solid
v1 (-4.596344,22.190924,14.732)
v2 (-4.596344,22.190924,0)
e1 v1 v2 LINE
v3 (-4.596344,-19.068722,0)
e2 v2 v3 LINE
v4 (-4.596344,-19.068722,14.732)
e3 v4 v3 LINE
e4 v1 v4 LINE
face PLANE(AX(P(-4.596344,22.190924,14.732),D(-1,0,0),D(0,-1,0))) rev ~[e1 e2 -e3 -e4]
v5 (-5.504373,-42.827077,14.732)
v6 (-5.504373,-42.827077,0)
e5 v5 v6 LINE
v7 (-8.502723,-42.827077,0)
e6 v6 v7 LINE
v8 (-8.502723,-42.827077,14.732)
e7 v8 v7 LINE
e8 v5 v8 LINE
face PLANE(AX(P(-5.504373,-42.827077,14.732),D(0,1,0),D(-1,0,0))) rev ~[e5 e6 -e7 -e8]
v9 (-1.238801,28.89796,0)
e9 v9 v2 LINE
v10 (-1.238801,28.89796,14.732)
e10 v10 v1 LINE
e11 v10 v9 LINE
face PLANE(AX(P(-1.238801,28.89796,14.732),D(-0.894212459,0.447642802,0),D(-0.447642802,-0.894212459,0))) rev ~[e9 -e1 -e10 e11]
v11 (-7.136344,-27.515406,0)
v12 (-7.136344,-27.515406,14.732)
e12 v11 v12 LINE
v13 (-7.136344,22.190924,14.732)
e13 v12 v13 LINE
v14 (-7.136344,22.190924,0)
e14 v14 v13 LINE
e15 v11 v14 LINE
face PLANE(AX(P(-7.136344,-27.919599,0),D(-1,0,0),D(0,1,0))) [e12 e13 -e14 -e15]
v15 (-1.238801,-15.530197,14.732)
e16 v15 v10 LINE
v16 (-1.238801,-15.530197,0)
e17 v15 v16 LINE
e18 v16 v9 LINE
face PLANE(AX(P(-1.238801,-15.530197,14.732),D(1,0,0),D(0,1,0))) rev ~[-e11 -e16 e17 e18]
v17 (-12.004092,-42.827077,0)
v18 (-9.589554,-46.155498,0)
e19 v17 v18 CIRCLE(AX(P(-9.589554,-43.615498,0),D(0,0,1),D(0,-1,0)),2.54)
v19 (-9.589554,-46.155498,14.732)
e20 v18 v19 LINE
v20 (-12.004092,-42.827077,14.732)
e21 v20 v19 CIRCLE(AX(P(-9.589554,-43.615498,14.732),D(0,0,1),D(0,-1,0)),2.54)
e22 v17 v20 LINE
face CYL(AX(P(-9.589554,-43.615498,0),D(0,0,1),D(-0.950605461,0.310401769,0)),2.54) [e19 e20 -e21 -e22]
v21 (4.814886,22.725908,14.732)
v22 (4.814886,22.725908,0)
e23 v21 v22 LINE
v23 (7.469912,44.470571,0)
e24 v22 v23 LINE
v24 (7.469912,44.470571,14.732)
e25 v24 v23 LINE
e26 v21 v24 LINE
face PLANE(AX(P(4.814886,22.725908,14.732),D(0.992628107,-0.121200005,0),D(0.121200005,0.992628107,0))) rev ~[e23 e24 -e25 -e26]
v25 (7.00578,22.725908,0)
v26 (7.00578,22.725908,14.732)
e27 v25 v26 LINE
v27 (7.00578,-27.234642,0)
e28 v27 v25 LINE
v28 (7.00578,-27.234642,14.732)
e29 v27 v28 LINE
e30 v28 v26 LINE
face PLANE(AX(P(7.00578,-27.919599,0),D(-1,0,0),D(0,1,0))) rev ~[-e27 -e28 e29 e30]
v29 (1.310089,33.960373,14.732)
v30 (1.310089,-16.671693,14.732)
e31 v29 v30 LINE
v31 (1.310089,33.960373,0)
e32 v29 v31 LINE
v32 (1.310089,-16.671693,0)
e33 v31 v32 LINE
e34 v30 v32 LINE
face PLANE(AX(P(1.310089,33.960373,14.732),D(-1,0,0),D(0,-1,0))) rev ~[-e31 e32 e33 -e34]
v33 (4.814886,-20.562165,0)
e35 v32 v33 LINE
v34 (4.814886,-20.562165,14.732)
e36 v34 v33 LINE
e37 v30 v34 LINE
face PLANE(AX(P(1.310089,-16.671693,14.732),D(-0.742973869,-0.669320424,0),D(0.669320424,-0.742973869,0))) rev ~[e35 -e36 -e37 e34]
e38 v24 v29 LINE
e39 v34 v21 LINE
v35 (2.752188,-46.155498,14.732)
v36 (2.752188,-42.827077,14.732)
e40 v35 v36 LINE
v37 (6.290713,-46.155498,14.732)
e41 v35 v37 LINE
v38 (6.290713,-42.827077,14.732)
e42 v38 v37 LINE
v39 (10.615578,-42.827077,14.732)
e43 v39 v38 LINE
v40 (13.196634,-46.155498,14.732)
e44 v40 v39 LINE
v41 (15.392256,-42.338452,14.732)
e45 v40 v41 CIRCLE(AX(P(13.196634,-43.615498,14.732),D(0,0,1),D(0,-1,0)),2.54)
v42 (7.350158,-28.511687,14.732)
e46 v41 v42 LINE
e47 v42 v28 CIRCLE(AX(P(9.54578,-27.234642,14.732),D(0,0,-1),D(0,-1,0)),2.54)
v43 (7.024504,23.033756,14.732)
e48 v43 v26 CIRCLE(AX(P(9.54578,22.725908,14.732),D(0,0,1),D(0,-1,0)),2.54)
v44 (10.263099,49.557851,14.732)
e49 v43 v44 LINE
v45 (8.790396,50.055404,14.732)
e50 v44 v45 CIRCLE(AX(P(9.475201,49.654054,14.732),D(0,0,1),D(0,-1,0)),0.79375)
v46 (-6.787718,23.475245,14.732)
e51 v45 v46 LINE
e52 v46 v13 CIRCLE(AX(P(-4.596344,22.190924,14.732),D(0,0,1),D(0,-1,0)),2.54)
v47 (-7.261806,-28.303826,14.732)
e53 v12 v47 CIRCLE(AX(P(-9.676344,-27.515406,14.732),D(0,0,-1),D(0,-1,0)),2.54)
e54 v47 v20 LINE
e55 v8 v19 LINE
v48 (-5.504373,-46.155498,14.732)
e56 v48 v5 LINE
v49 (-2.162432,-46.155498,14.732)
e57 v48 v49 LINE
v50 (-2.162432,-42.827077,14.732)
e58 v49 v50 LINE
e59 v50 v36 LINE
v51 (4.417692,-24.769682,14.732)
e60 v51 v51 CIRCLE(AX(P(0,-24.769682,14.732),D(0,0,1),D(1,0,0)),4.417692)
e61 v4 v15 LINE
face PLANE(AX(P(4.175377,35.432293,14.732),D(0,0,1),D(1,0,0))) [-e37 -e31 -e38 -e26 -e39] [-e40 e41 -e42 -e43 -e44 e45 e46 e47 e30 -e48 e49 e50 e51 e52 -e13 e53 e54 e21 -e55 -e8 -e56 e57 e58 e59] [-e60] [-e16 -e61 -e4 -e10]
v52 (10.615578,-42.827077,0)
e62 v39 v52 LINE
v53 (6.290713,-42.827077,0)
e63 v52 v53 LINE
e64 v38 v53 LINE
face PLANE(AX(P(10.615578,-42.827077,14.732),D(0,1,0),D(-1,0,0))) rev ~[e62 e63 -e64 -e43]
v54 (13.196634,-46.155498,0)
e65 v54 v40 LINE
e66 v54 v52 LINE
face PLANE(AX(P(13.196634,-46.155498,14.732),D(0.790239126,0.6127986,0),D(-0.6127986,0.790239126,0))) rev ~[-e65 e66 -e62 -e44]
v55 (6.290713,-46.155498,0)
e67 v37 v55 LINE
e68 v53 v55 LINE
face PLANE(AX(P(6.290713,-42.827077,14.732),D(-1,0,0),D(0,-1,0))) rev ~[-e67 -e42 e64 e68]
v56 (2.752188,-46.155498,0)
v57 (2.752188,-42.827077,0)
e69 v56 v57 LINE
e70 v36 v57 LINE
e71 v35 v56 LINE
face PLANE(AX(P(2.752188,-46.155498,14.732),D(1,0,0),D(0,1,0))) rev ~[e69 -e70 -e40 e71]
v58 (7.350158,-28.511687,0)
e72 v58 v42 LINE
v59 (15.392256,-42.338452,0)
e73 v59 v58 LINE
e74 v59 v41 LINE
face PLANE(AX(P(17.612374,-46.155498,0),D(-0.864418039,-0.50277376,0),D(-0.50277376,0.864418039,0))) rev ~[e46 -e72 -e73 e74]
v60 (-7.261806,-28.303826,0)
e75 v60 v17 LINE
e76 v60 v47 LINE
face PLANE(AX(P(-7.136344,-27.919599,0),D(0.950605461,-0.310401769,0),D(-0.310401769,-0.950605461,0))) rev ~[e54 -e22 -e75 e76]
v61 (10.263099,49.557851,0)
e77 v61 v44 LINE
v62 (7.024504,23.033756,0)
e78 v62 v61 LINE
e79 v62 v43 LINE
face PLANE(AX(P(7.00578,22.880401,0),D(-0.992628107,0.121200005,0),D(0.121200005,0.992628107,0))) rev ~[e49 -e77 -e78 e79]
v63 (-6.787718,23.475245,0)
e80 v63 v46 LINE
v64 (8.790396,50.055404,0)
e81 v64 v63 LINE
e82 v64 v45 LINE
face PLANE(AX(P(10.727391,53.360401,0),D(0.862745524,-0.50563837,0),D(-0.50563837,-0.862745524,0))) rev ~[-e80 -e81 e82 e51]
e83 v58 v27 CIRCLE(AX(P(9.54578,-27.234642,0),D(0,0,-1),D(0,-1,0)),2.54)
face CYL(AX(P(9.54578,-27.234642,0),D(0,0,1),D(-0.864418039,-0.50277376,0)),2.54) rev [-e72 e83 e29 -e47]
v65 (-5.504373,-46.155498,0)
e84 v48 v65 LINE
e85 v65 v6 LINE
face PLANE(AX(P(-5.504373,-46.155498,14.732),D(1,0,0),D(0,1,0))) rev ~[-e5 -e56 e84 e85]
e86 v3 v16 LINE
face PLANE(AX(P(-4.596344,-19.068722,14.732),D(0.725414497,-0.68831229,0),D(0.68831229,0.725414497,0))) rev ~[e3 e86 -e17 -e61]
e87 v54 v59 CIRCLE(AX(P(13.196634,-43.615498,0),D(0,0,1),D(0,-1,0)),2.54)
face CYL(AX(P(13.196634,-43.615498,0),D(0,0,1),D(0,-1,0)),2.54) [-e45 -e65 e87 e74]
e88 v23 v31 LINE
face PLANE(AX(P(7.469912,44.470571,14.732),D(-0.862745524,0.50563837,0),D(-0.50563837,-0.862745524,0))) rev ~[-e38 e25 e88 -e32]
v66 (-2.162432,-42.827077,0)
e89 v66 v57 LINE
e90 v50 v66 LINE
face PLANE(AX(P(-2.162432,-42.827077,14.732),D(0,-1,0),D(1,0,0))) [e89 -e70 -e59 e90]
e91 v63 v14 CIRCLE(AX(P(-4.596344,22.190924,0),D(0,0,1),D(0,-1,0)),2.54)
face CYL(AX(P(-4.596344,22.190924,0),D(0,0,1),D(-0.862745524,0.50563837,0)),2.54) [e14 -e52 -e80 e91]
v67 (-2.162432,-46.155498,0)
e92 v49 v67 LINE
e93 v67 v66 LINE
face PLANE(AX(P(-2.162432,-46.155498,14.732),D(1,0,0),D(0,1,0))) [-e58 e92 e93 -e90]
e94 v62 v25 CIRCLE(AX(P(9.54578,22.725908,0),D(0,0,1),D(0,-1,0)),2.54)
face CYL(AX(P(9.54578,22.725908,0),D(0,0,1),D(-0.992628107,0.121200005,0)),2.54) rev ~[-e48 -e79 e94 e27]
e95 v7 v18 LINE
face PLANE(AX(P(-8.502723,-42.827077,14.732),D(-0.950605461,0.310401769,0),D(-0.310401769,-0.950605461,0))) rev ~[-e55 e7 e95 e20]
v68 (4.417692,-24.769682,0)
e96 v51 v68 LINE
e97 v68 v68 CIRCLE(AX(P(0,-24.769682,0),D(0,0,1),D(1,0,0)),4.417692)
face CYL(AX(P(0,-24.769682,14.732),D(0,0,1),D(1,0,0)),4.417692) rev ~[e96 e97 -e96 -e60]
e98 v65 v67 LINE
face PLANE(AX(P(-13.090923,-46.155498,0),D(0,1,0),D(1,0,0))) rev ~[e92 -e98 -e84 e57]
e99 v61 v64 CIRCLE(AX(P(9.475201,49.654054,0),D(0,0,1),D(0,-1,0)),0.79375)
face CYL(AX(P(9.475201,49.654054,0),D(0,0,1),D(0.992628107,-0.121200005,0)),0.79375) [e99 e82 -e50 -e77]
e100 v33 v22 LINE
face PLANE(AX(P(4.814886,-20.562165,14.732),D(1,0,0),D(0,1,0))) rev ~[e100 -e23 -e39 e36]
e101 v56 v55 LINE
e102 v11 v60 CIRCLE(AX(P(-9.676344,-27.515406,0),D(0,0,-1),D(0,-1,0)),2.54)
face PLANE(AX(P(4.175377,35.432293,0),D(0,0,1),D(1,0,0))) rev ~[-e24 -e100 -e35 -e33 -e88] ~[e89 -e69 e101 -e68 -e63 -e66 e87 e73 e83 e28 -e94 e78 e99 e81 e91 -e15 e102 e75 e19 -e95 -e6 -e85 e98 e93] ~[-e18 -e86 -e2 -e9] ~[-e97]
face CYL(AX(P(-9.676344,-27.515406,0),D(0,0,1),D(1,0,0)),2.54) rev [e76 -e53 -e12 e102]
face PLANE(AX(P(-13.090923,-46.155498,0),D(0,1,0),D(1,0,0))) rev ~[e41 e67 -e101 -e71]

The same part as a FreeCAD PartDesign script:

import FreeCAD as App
import Part
import Sketcher

V = App.Vector
Q = App.Units.Quantity


def edges_at(feature, points):
    """Names of the edges that pass closest to the given points."""
    edges = feature.Shape.Edges
    near = lambda p: min(range(len(edges)), key=lambda i: edges[i].distToShape(Part.Vertex(*p))[0])
    return sorted({f"Edge{near(p) + 1}" for p in points})

doc = App.newDocument("Part")
params = doc.addObject("Spreadsheet::Sheet", "Params")
for row, (alias, value) in enumerate([
    ("sketch1_height", "2 in"),
    ("pad1_length", "0.58 in"),
    ("fillet_radius", "0.1 in"),
    ("fillet2_radius", "0.03125 in"),
    ("pocket1_length", "1.5 in"),
], start=1):
    params.set(f"A{row}", alias)
    params.set(f"B{row}", "=" + value)
    params.setAlias(f"B{row}", alias)

body = doc.addObject("PartDesign::Body", "Body")

sketch1 = body.newObject("Sketcher::SketchObject", "Sketch")
sketch1.AttachmentSupport = (doc.getObject("XY_Plane"), [""])
sketch1.MapMode = "FlatFace"
sketch1.addGeometry([
    Part.LineSegment(V(7, 23, 0), V(11, 53, 0)),
    Part.LineSegment(V(11, 53, 0), V(-7, 23, 0)),
    Part.LineSegment(V(-7, 23, 0), V(-7, -28, 0)),
    Part.LineSegment(V(-7, -28, 0), V(-13, -46, 0)),
    Part.LineSegment(V(-13, -46, 0), V(18, -46, 0)),
    Part.LineSegment(V(18, -46, 0), V(7, -28, 0)),
    Part.LineSegment(V(7, -28, 0), V(7, 23, 0)),
], False)
sketch1.addConstraint([
    Sketcher.Constraint("Coincident", 0, 2, 1, 1),
    Sketcher.Constraint("Coincident", 1, 2, 2, 1),
    Sketcher.Constraint("Coincident", 2, 2, 3, 1),
    Sketcher.Constraint("Coincident", 3, 2, 4, 1),
    Sketcher.Constraint("Coincident", 4, 2, 5, 1),
    Sketcher.Constraint("Coincident", 5, 2, 6, 1),
    Sketcher.Constraint("Coincident", 6, 2, 0, 1),
    Sketcher.Constraint("Vertical", 2),
    Sketcher.Constraint("Horizontal", 4),
    Sketcher.Constraint("Vertical", 6),
    Sketcher.Constraint("Horizontal", 2, 2, 5, 2),
    Sketcher.Constraint("Horizontal", 1, 2, 6, 2),
    Sketcher.Constraint("DistanceY", 2, 2, 2, 1, Q("2 in")),
    Sketcher.Constraint("DistanceY", 1, 2, 0, 2, Q("1.2 in")),
    Sketcher.Constraint("DistanceY", -1, 1, 0, 2, Q("53.360401 mm")),
    Sketcher.Constraint("DistanceY", 3, 2, 2, 2, Q("18.235899 mm")),
    Sketcher.Constraint("DistanceX", 4, 1, 4, 2, Q("30.703297 mm")),
    Sketcher.Constraint("DistanceX", -1, 1, 0, 2, Q("10.727391 mm")),
    Sketcher.Constraint("DistanceX", -1, 1, 5, 2, Q("7.00578 mm")),
    Sketcher.Constraint("DistanceX", 3, 2, 2, 2, Q("5.954579 mm")),
    Sketcher.Constraint("Distance", 1, Q("35.329073 mm")),
])
sketch1.setExpression("Constraints[12]", "Params.sketch1_height")
pad1 = body.newObject("PartDesign::Pad", "Pad")
pad1.Profile = sketch1
pad1.setExpression("Length", "Params.pad1_length")
doc.recompute()

fillet = body.newObject("PartDesign::Fillet", "Fillet")
fillet.Base = (pad1, edges_at(pad1, [
    (7.006, -27.92, 7.366),
    (7.006, 22.88, 7.366),
    (-13.091, -46.155, 7.366),
    (17.612, -46.155, 7.366),
    (-7.136, 22.88, 7.366),
    (-7.136, -27.92, 7.366),
]))
fillet.setExpression("Radius", "Params.fillet_radius")
doc.recompute()

fillet2 = body.newObject("PartDesign::Fillet", "Fillet001")
fillet2.Base = (fillet, edges_at(fillet, [(10.727, 53.36, 7.366)]))
fillet2.setExpression("Radius", "Params.fillet2_radius")

sketch2 = body.newObject("Sketcher::SketchObject", "Sketch001")
sketch2.AttachmentSupport = (doc.getObject("XY_Plane"), [""])
sketch2.MapMode = "FlatFace"
sketch2.AttachmentOffset = App.Placement(V(0, 0, 0.58 * 25.4), App.Rotation())
sketch2.addGeometry([
    Part.Circle(V(0, -24.8, 0), V(0, 0, 1), 4.4),
    Part.LineSegment(V(-1.2, 28.9, 0), V(-4.6, 22.2, 0)),
    Part.LineSegment(V(-4.6, 22.2, 0), V(-4.6, -19.1, 0)),
    Part.LineSegment(V(-4.6, -19.1, 0), V(-1.2, -15.5, 0)),
    Part.LineSegment(V(-1.2, -15.5, 0), V(-1.2, 28.9, 0)),
    Part.LineSegment(V(1.3, 34, 0), V(1.3, -16.7, 0)),
    Part.LineSegment(V(1.3, -16.7, 0), V(4.8, -20.6, 0)),
    Part.LineSegment(V(4.8, -20.6, 0), V(4.8, 22.7, 0)),
    Part.LineSegment(V(4.8, 22.7, 0), V(7.5, 44.5, 0)),
    Part.LineSegment(V(7.5, 44.5, 0), V(1.3, 34, 0)),
    Part.LineSegment(V(-8.5, -42.8, 0), V(-9.6, -46.2, 0)),
    Part.LineSegment(V(-9.6, -46.2, 0), V(-5.5, -46.2, 0)),
    Part.LineSegment(V(-5.5, -46.2, 0), V(-5.5, -42.8, 0)),
    Part.LineSegment(V(-5.5, -42.8, 0), V(-8.5, -42.8, 0)),
    Part.LineSegment(V(-2.2, -42.8, 0), V(-2.2, -46.2, 0)),
    Part.LineSegment(V(-2.2, -46.2, 0), V(2.8, -46.2, 0)),
    Part.LineSegment(V(2.8, -46.2, 0), V(2.8, -42.8, 0)),
    Part.LineSegment(V(2.8, -42.8, 0), V(-2.2, -42.8, 0)),
    Part.LineSegment(V(6.3, -42.8, 0), V(6.3, -46.2, 0)),
    Part.LineSegment(V(6.3, -46.2, 0), V(13.2, -46.2, 0)),
    Part.LineSegment(V(13.2, -46.2, 0), V(10.6, -42.8, 0)),
    Part.LineSegment(V(10.6, -42.8, 0), V(6.3, -42.8, 0)),
], False)
sketch2.addConstraint([
    Sketcher.Constraint("Coincident", 1, 2, 2, 1),
    Sketcher.Constraint("Coincident", 2, 2, 3, 1),
    Sketcher.Constraint("Coincident", 3, 2, 4, 1),
    Sketcher.Constraint("Coincident", 4, 2, 1, 1),
    Sketcher.Constraint("Coincident", 5, 2, 6, 1),
    Sketcher.Constraint("Coincident", 6, 2, 7, 1),
    Sketcher.Constraint("Coincident", 7, 2, 8, 1),
    Sketcher.Constraint("Coincident", 8, 2, 9, 1),
    Sketcher.Constraint("Coincident", 9, 2, 5, 1),
    Sketcher.Constraint("Coincident", 10, 2, 11, 1),
    Sketcher.Constraint("Coincident", 11, 2, 12, 1),
    Sketcher.Constraint("Coincident", 12, 2, 13, 1),
    Sketcher.Constraint("Coincident", 13, 2, 10, 1),
    Sketcher.Constraint("Coincident", 14, 2, 15, 1),
    Sketcher.Constraint("Coincident", 15, 2, 16, 1),
    Sketcher.Constraint("Coincident", 16, 2, 17, 1),
    Sketcher.Constraint("Coincident", 17, 2, 14, 1),
    Sketcher.Constraint("Coincident", 18, 2, 19, 1),
    Sketcher.Constraint("Coincident", 19, 2, 20, 1),
    Sketcher.Constraint("Coincident", 20, 2, 21, 1),
    Sketcher.Constraint("Coincident", 21, 2, 18, 1),
    Sketcher.Constraint("Vertical", 2),
    Sketcher.Constraint("Vertical", 4),
    Sketcher.Constraint("Vertical", 5),
    Sketcher.Constraint("Vertical", 7),
    Sketcher.Constraint("Horizontal", 11),
    Sketcher.Constraint("Vertical", 12),
    Sketcher.Constraint("Horizontal", 13),
    Sketcher.Constraint("Vertical", 14),
    Sketcher.Constraint("Horizontal", 15),
    Sketcher.Constraint("Vertical", 16),
    Sketcher.Constraint("Horizontal", 17),
    Sketcher.Constraint("Vertical", 18),
    Sketcher.Constraint("Horizontal", 19),
    Sketcher.Constraint("Horizontal", 21),
    Sketcher.Constraint("PointOnObject", 0, 3, -2),
    Sketcher.Constraint("Horizontal", 11, 2, 14, 2),
    Sketcher.Constraint("Horizontal", 13, 2, 16, 2),
    Sketcher.Constraint("Horizontal", 15, 2, 18, 2),
    Sketcher.Constraint("Horizontal", 17, 2, 20, 2),
    Sketcher.Constraint("Diameter", 0, Q("8.835385 mm")),
    Sketcher.Constraint("DistanceX", 11, 1, 11, 2, Q("4.085181 mm")),
    Sketcher.Constraint("DistanceX", 13, 2, 13, 1, Q("2.99835 mm")),
    Sketcher.Constraint("DistanceX", 15, 1, 15, 2, Q("4.91462 mm")),
    Sketcher.Constraint("DistanceX", 19, 1, 19, 2, Q("6.905921 mm")),
    Sketcher.Constraint("DistanceY", 12, 1, 12, 2, Q("3.32842 mm")),
    Sketcher.Constraint("DistanceX", 3, 2, -1, 1, Q("1.238801 mm")),
    Sketcher.Constraint("DistanceY", 5, 2, 7, 2, Q("39.397601 mm")),
    Sketcher.Constraint("DistanceY", 9, 2, 8, 2, Q("10.510198 mm")),
    Sketcher.Constraint("DistanceY", 10, 2, 3, 2, Q("30.625301 mm")),
    Sketcher.Constraint("Distance", 6, Q("5.236351 mm")),
    Sketcher.Constraint("Distance", 9, Q("12.182269 mm")),
    Sketcher.Constraint("DistanceX", 21, 2, 21, 1, Q("4.324865 mm")),
    Sketcher.Constraint("DistanceY", 2, 2, 2, 1, Q("41.259645 mm")),
    Sketcher.Constraint("DistanceY", 4, 1, 4, 2, Q("44.428157 mm")),
    Sketcher.Constraint("DistanceY", 5, 2, 5, 1, Q("50.632066 mm")),
    Sketcher.Constraint("DistanceY", 7, 1, 7, 2, Q("43.288073 mm")),
    Sketcher.Constraint("DistanceY", 2, 2, -1, 1, Q("19.068722 mm")),
    Sketcher.Constraint("DistanceY", -1, 1, 4, 2, Q("28.89796 mm")),
    Sketcher.Constraint("DistanceX", -1, 1, 5, 2, Q("1.310089 mm")),
    Sketcher.Constraint("DistanceY", -1, 1, 8, 2, Q("44.470571 mm")),
    Sketcher.Constraint("DistanceY", 0, 3, 2, 2, Q("5.700961 mm")),
    Sketcher.Constraint("DistanceX", 2, 2, 6, 2, Q("9.41123 mm")),
    Sketcher.Constraint("DistanceX", 10, 2, 2, 2, Q("4.99321 mm")),
    Sketcher.Constraint("DistanceX", 11, 2, 14, 2, Q("3.341941 mm")),
    Sketcher.Constraint("DistanceX", 16, 2, 20, 2, Q("7.86339 mm")),
])
pocket1 = body.newObject("PartDesign::Pocket", "Pocket")
pocket1.Profile = sketch2
pocket1.setExpression("Length", "Params.pocket1_length")

doc.recompute()
